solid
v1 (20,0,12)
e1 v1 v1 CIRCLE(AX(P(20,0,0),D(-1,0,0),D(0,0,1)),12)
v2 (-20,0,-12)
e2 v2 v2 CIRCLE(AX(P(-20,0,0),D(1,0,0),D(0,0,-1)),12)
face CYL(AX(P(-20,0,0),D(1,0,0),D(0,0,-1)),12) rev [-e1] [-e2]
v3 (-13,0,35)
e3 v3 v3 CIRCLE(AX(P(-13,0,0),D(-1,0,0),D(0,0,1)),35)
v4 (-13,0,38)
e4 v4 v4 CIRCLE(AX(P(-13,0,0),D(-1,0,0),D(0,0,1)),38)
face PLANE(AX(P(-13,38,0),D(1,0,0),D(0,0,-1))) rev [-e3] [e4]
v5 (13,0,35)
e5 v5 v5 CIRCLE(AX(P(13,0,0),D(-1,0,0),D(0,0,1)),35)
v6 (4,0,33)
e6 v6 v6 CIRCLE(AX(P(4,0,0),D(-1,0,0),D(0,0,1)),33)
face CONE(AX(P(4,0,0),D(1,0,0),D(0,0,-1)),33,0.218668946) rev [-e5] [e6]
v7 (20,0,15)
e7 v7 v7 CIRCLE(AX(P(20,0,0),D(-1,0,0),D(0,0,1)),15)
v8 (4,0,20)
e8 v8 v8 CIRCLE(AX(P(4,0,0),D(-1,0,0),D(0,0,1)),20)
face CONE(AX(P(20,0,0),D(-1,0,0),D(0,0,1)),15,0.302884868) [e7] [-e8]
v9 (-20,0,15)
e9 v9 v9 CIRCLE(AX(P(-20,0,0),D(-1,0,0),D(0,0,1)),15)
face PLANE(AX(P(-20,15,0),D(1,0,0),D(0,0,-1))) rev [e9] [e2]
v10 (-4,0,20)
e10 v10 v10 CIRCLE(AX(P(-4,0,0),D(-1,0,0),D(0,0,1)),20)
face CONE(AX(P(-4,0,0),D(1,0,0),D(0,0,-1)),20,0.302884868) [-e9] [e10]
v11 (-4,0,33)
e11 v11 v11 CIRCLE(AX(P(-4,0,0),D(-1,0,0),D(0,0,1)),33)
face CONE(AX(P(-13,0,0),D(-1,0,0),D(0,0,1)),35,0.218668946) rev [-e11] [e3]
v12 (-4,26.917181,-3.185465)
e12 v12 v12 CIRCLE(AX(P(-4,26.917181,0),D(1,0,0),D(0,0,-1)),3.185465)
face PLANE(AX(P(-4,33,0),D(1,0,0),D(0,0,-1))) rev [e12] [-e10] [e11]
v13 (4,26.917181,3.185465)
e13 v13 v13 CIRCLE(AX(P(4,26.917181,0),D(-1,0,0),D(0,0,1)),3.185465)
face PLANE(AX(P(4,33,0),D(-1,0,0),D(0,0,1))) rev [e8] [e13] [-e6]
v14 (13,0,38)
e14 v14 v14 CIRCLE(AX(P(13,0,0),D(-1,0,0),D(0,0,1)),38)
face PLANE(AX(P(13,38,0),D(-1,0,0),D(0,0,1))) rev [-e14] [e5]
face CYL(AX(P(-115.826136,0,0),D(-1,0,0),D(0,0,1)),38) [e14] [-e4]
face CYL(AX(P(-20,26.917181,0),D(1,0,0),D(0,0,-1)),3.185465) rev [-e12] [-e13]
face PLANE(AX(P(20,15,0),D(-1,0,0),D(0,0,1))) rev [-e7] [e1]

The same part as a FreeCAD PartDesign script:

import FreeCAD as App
import Part
import Sketcher

V = App.Vector


def add_polygon(sketch, points):
    """Adds a closed chain of lines whose ends are joined by coincident constraints."""
    first, n = sketch.GeometryCount, len(points)
    for a, b in zip(points, points[1:] + points[:1]):
        sketch.addGeometry(Part.LineSegment(App.Vector(*a, 0), App.Vector(*b, 0)), False)
    for i in range(n):
        sketch.addConstraint(Sketcher.Constraint("Coincident", first + i, 2, first + (i + 1) % n, 1))

doc = App.newDocument("Part")
body = doc.addObject("PartDesign::Body", "Body")

sketch1 = body.newObject("Sketcher::SketchObject", "Sketch")
sketch1.AttachmentSupport = (doc.getObject("XY_Plane"), [""])
sketch1.MapMode = "FlatFace"
add_polygon(sketch1, [(13, 38), (-13, 38), (-13, 35), (-4, 33), (-4, 20), (-20, 15), (-20, 0), (20, 0), (20, 15), (4, 20), (4, 33), (13, 35)])
sketch1.addConstraint([
    Sketcher.Constraint("Horizontal", 0),
    Sketcher.Constraint("Vertical", 1),
    Sketcher.Constraint("Vertical", 3),
    Sketcher.Constraint("Vertical", 5),
    Sketcher.Constraint("Horizontal", 6),
    Sketcher.Constraint("Vertical", 7),
    Sketcher.Constraint("Vertical", 9),
    Sketcher.Constraint("Vertical", 11),
    Sketcher.Constraint("Symmetric", 5, 2, 6, 2, -1, 1),
    Sketcher.Constraint("Symmetric", 3, 2, 8, 2, -2),
    Sketcher.Constraint("Symmetric", 1, 2, 10, 2, -2),
    Sketcher.Constraint("Horizontal", 4, 2, 7, 2),
    Sketcher.Constraint("Horizontal", 2, 2, 9, 2),
    Sketcher.Constraint("DistanceX", 0, 2, 0, 1, 26.0),
    Sketcher.Constraint("DistanceX", 6, 1, 6, 2, 40.0),
    Sketcher.Constraint("DistanceY", 1, 2, 1, 1, 3.0),
    Sketcher.Constraint("DistanceY", 3, 2, 3, 1, 13.0),
    Sketcher.Constraint("DistanceY", 5, 2, 5, 1, 15.0),
    Sketcher.Constraint("DistanceY", -1, 1, 0, 2, 38.0),
    Sketcher.Constraint("DistanceX", 2, 2, -1, 1, 4.0),
    Sketcher.Constraint("DistanceY", -1, 1, 2, 2, 33.0),
])
revolution = body.newObject("PartDesign::Revolution", "Revolution")
revolution.Profile = sketch1
revolution.ReferenceAxis = (sketch1, ["H_Axis"])
revolution.Angle = 360

sketch2 = body.newObject("Sketcher::SketchObject", "Sketch001")
sketch2.AttachmentSupport = (doc.getObject("YZ_Plane"), [""])
sketch2.MapMode = "FlatFace"
sketch2.AttachmentOffset = App.Placement(V(0, 0, 20), App.Rotation())
sketch2.addGeometry(Part.Circle(V(0, 0, 0), V(0, 0, 1), 12), False)
sketch2.addConstraint([
    Sketcher.Constraint("Coincident", 0, 3, -1, 1),
    Sketcher.Constraint("Diameter", 0, 24.0),
])
pocket1 = body.newObject("PartDesign::Pocket", "Pocket")
pocket1.Profile = sketch2
pocket1.Type = "ThroughAll"
pocket1.Midplane = True

sketch3 = body.newObject("Sketcher::SketchObject", "Sketch002")
sketch3.AttachmentSupport = (doc.getObject("YZ_Plane"), [""])
sketch3.MapMode = "FlatFace"
sketch3.AttachmentOffset = App.Placement(V(0, 0, 4), App.Rotation())
sketch3.addGeometry(Part.Circle(V(26.9, 0, 0), V(0, 0, 1), 3.2), False)
sketch3.addConstraint([
    Sketcher.Constraint("PointOnObject", 0, 3, -1),
    Sketcher.Constraint("Diameter", 0, 6.37093),
    Sketcher.Constraint("DistanceX", -1, 1, 0, 3, 26.917181),
])
pocket2 = body.newObject("PartDesign::Pocket", "Pocket001")
pocket2.Profile = sketch3
pocket2.Type = "ThroughAll"
pocket2.Midplane = True

doc.recompute()
